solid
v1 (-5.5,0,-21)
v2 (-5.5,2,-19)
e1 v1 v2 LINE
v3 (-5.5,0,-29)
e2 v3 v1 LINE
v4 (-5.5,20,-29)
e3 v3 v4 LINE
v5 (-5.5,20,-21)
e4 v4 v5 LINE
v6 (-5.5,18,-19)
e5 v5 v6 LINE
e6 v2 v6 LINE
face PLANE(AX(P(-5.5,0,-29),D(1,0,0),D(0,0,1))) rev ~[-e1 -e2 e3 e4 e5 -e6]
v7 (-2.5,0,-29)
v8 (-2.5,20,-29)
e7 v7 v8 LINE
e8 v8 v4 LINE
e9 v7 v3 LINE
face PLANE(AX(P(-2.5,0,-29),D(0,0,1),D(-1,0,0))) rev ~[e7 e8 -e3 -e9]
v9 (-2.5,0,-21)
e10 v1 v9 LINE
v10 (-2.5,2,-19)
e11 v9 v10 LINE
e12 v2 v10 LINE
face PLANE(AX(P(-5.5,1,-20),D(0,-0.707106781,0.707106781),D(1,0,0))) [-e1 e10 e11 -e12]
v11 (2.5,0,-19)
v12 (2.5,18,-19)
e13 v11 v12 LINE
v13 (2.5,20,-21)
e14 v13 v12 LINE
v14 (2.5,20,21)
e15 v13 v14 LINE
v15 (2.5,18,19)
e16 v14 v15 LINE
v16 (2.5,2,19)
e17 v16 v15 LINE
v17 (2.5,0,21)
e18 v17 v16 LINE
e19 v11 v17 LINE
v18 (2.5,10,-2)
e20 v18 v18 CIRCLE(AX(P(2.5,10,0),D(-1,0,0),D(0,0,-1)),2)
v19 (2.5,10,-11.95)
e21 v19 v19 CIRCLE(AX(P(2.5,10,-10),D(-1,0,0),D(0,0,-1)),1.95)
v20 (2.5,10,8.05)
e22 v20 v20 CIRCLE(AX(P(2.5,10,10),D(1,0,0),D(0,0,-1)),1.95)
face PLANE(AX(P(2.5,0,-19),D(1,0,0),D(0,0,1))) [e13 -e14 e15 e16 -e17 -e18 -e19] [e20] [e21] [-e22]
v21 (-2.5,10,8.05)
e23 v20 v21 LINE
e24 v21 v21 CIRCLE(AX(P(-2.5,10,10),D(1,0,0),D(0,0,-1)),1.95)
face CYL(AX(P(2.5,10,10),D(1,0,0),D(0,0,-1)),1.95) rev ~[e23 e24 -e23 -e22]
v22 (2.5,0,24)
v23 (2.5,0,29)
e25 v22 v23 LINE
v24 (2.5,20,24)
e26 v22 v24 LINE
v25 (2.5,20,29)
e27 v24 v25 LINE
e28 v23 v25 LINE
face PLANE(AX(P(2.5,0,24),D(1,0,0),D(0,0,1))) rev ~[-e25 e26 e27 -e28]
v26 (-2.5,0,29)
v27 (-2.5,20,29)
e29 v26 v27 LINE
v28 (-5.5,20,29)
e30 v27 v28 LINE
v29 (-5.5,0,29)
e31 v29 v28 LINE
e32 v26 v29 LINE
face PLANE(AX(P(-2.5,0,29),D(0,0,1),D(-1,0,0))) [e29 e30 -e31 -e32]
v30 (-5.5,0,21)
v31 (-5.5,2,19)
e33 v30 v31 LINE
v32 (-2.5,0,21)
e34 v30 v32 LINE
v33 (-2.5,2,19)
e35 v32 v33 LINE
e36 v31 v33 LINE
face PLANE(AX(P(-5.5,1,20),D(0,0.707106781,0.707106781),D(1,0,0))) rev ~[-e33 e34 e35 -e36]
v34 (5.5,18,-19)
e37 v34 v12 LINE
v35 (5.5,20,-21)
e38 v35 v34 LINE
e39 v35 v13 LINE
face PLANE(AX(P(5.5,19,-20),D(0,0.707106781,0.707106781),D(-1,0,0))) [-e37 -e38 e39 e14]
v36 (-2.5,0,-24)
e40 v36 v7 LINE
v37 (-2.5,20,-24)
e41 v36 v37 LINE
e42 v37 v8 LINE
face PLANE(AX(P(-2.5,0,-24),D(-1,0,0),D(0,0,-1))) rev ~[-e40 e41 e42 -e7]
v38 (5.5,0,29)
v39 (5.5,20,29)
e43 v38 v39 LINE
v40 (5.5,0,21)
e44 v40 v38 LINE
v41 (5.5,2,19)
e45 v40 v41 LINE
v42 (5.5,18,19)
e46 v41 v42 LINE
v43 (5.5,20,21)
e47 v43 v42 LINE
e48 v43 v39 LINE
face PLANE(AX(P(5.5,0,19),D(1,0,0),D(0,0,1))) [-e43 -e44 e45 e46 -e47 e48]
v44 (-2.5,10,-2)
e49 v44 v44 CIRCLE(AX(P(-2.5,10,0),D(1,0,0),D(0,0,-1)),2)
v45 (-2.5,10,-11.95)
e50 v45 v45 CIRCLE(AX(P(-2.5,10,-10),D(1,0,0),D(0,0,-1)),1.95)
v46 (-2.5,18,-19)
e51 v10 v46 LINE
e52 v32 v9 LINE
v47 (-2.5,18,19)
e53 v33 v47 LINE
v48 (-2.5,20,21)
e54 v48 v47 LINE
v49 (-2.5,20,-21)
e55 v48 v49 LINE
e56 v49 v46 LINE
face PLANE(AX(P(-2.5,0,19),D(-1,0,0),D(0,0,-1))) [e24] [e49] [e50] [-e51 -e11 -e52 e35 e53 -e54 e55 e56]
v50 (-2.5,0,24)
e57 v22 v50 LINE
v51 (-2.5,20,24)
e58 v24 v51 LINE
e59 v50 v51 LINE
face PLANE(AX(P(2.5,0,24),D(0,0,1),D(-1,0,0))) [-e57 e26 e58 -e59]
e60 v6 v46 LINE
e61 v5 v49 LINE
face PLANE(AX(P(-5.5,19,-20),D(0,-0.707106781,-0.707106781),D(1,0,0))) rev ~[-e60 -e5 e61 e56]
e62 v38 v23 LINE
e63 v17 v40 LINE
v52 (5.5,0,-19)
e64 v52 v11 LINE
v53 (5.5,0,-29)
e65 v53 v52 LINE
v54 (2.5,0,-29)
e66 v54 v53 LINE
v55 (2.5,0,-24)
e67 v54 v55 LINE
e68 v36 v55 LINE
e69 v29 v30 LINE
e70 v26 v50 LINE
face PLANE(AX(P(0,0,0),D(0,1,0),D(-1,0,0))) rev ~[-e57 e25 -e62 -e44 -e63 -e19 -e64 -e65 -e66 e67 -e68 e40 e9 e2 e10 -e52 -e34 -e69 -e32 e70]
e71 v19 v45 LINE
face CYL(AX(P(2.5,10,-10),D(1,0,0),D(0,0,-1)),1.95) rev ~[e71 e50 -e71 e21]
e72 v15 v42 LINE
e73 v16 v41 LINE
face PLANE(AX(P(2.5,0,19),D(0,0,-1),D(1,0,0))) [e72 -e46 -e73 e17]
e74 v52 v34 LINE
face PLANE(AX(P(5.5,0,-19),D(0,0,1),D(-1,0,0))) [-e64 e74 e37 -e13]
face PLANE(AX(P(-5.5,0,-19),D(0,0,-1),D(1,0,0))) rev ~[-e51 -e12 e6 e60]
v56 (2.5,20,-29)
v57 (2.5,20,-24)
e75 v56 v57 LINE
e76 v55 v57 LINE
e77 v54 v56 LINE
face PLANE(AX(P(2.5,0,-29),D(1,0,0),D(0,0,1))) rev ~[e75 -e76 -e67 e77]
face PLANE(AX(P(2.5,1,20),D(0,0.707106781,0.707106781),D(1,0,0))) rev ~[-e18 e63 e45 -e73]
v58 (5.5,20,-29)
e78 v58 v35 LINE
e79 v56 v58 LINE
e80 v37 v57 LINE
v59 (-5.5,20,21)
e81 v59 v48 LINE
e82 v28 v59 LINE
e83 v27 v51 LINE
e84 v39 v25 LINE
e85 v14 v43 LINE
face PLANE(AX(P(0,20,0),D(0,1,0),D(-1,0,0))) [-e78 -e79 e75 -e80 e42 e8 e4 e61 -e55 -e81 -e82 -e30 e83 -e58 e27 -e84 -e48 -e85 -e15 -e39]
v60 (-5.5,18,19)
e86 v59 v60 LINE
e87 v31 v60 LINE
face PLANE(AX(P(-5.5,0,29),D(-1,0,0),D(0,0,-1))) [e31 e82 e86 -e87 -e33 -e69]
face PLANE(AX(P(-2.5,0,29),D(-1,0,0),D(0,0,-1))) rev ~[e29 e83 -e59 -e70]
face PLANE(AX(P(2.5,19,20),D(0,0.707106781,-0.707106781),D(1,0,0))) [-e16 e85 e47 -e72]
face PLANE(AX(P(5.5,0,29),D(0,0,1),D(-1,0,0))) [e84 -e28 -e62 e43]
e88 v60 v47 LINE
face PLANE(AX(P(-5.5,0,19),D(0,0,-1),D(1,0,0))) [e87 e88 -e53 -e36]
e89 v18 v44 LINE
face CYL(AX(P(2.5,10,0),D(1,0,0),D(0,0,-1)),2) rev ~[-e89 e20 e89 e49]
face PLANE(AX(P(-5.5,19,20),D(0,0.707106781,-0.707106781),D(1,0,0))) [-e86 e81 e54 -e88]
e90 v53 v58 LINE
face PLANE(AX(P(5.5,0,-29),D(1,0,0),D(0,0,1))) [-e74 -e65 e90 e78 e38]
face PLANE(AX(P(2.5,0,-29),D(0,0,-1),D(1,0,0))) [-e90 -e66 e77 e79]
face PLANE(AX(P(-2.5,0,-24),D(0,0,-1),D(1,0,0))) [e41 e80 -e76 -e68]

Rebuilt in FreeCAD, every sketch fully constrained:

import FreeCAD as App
import Part
import Sketcher
from FreeCAD import Vector


def edges_at(feature, points):
    """Names of the edges that pass closest to the given points."""
    edges = feature.Shape.Edges
    near = lambda p: min(range(len(edges)), key=lambda i: edges[i].distToShape(Part.Vertex(*p))[0])
    return sorted({f"Edge{near(p) + 1}" for p in points})


def add_polygon(sketch, points):
    """Adds a closed chain of lines whose ends are joined by coincident constraints."""
    first, n = sketch.GeometryCount, len(points)
    for a, b in zip(points, points[1:] + points[:1]):
        sketch.addGeometry(Part.LineSegment(App.Vector(*a, 0), App.Vector(*b, 0)), False)
    for i in range(n):
        sketch.addConstraint(Sketcher.Constraint("Coincident", first + i, 2, first + (i + 1) % n, 1))

doc = App.newDocument("Part")
body = doc.addObject("PartDesign::Body", "Body")

# Sketch on XZ plane
sketch1 = body.newObject("Sketcher::SketchObject", "Sketch")
sketch1.AttachmentSupport = (doc.getObject("XZ_Plane"), [""])
sketch1.MapMode = "FlatFace"
add_polygon(sketch1, [(-2.5, 24), (2.5, 24), (2.5, 29), (5.5, 29), (5.5, 19), (2.5, 19), (2.5, -19), (5.5, -19), (5.5, -29), (2.5, -29), (2.5, -24), (-2.5, -24), (-2.5, -29), (-5.5, -29), (-5.5, -19), (-2.5, -19), (-2.5, 19), (-5.5, 19), (-5.5, 29), (-2.5, 29)])  # lines 0-19
sketch1.addConstraint(Sketcher.Constraint("Horizontal", 0))
sketch1.addConstraint(Sketcher.Constraint("Vertical", 1))
sketch1.addConstraint(Sketcher.Constraint("Horizontal", 2))
sketch1.addConstraint(Sketcher.Constraint("Vertical", 3))
sketch1.addConstraint(Sketcher.Constraint("Horizontal", 4))
sketch1.addConstraint(Sketcher.Constraint("Vertical", 5))
sketch1.addConstraint(Sketcher.Constraint("Horizontal", 6))
sketch1.addConstraint(Sketcher.Constraint("Vertical", 7))
sketch1.addConstraint(Sketcher.Constraint("Horizontal", 8))
sketch1.addConstraint(Sketcher.Constraint("Vertical", 9))
sketch1.addConstraint(Sketcher.Constraint("Horizontal", 10))
sketch1.addConstraint(Sketcher.Constraint("Vertical", 11))
sketch1.addConstraint(Sketcher.Constraint("Horizontal", 12))
sketch1.addConstraint(Sketcher.Constraint("Vertical", 13))
sketch1.addConstraint(Sketcher.Constraint("Horizontal", 14))
sketch1.addConstraint(Sketcher.Constraint("Vertical", 15))
sketch1.addConstraint(Sketcher.Constraint("Horizontal", 16))
sketch1.addConstraint(Sketcher.Constraint("Vertical", 17))
sketch1.addConstraint(Sketcher.Constraint("Horizontal", 18))
sketch1.addConstraint(Sketcher.Constraint("Vertical", 19))
sketch1.addConstraint(Sketcher.Constraint("Symmetric", 0, 2, 10, 2, -1, 1))
sketch1.addConstraint(Sketcher.Constraint("Symmetric", 2, 2, 12, 2, -1, 1))
sketch1.addConstraint(Sketcher.Constraint("Symmetric", 4, 2, 14, 2, -1, 1))
sketch1.addConstraint(Sketcher.Constraint("Symmetric", 6, 2, 16, 2, -1, 1))
sketch1.addConstraint(Sketcher.Constraint("Symmetric", 8, 2, 18, 2, -1, 1))
sketch1.addConstraint(Sketcher.Constraint("Symmetric", 8, 2, 11, 2, -2))
sketch1.addConstraint(Sketcher.Constraint("Symmetric", 6, 2, 13, 2, -2))
sketch1.addConstraint(Sketcher.Constraint("Vertical", 1, 2, 4, 2))
sketch1.addConstraint(Sketcher.Constraint("Equal", 10, 1))
sketch1.addConstraint(Sketcher.Constraint("DistanceX", 2, 1, 2, 2, 3.0))
sketch1.addConstraint(Sketcher.Constraint("DistanceY", 3, 2, 3, 1, 10.0))
sketch1.addConstraint(Sketcher.Constraint("DistanceX", 0, 1, 0, 2, 5.0))
sketch1.addConstraint(Sketcher.Constraint("DistanceY", 5, 2, 5, 1, 38.0))
pad1 = body.newObject("PartDesign::Pad", "Pad")
pad1.Profile = sketch1
pad1.Length = 20
pad1.Reversed = True

# Sketch on YZ plane
sketch2 = body.newObject("Sketcher::SketchObject", "Sketch001")
sketch2.AttachmentSupport = (doc.getObject("YZ_Plane"), [""])
sketch2.MapMode = "FlatFace"
sketch2.AttachmentOffset = App.Placement(Vector(0, 0, 2.5), App.Rotation())
sketch2.addGeometry(Part.Circle(Vector(10, 0, 0), Vector(0, 0, 1), 2), False)
sketch2.addConstraint(Sketcher.Constraint("PointOnObject", 0, 3, -1))
sketch2.addConstraint(Sketcher.Constraint("Diameter", 0, 4.0))
sketch2.addConstraint(Sketcher.Constraint("DistanceX", -1, 1, 0, 3, 10.0))
pocket1 = body.newObject("PartDesign::Pocket", "Pocket")
pocket1.Profile = sketch2
pocket1.Length = 35
doc.recompute()

chamfer = body.newObject("PartDesign::Chamfer", "Chamfer")
chamfer.Base = (pocket1, edges_at(pocket1, [
    (-4, 20, -19),
    (-4, 0, -19),
    (4, 20, -19),
    (4, 20, 19),
    (-4, 20, 19),
    (-4, 0, 19),
    (4, 0, 19),
]))
chamfer.Size = 2

# Sketch on YZ plane
sketch3 = body.newObject("Sketcher::SketchObject", "Sketch002")
sketch3.AttachmentSupport = (doc.getObject("YZ_Plane"), [""])
sketch3.MapMode = "FlatFace"
sketch3.AttachmentOffset = App.Placement(Vector(0, 0, 2.5), App.Rotation())
sketch3.addGeometry(Part.Circle(Vector(10, 10, 0), Vector(0, 0, 1), 1.9), False)
sketch3.addGeometry(Part.Circle(Vector(10, -10, 0), Vector(0, 0, 1), 1.9), False)
sketch3.addConstraint(Sketcher.Constraint("Equal", 0, 1))
sketch3.addConstraint(Sketcher.Constraint("Symmetric", 0, 3, 1, 3, -1))
sketch3.addConstraint(Sketcher.Constraint("Diameter", 0, 3.9))
sketch3.addConstraint(Sketcher.Constraint("DistanceX", -1, 1, 0, 3, 10.0))
sketch3.addConstraint(Sketcher.Constraint("DistanceY", -1, 1, 0, 3, 10.0))
pocket2 = body.newObject("PartDesign::Pocket", "Pocket001")
pocket2.Profile = sketch3
pocket2.Length = 22

doc.recompute()
